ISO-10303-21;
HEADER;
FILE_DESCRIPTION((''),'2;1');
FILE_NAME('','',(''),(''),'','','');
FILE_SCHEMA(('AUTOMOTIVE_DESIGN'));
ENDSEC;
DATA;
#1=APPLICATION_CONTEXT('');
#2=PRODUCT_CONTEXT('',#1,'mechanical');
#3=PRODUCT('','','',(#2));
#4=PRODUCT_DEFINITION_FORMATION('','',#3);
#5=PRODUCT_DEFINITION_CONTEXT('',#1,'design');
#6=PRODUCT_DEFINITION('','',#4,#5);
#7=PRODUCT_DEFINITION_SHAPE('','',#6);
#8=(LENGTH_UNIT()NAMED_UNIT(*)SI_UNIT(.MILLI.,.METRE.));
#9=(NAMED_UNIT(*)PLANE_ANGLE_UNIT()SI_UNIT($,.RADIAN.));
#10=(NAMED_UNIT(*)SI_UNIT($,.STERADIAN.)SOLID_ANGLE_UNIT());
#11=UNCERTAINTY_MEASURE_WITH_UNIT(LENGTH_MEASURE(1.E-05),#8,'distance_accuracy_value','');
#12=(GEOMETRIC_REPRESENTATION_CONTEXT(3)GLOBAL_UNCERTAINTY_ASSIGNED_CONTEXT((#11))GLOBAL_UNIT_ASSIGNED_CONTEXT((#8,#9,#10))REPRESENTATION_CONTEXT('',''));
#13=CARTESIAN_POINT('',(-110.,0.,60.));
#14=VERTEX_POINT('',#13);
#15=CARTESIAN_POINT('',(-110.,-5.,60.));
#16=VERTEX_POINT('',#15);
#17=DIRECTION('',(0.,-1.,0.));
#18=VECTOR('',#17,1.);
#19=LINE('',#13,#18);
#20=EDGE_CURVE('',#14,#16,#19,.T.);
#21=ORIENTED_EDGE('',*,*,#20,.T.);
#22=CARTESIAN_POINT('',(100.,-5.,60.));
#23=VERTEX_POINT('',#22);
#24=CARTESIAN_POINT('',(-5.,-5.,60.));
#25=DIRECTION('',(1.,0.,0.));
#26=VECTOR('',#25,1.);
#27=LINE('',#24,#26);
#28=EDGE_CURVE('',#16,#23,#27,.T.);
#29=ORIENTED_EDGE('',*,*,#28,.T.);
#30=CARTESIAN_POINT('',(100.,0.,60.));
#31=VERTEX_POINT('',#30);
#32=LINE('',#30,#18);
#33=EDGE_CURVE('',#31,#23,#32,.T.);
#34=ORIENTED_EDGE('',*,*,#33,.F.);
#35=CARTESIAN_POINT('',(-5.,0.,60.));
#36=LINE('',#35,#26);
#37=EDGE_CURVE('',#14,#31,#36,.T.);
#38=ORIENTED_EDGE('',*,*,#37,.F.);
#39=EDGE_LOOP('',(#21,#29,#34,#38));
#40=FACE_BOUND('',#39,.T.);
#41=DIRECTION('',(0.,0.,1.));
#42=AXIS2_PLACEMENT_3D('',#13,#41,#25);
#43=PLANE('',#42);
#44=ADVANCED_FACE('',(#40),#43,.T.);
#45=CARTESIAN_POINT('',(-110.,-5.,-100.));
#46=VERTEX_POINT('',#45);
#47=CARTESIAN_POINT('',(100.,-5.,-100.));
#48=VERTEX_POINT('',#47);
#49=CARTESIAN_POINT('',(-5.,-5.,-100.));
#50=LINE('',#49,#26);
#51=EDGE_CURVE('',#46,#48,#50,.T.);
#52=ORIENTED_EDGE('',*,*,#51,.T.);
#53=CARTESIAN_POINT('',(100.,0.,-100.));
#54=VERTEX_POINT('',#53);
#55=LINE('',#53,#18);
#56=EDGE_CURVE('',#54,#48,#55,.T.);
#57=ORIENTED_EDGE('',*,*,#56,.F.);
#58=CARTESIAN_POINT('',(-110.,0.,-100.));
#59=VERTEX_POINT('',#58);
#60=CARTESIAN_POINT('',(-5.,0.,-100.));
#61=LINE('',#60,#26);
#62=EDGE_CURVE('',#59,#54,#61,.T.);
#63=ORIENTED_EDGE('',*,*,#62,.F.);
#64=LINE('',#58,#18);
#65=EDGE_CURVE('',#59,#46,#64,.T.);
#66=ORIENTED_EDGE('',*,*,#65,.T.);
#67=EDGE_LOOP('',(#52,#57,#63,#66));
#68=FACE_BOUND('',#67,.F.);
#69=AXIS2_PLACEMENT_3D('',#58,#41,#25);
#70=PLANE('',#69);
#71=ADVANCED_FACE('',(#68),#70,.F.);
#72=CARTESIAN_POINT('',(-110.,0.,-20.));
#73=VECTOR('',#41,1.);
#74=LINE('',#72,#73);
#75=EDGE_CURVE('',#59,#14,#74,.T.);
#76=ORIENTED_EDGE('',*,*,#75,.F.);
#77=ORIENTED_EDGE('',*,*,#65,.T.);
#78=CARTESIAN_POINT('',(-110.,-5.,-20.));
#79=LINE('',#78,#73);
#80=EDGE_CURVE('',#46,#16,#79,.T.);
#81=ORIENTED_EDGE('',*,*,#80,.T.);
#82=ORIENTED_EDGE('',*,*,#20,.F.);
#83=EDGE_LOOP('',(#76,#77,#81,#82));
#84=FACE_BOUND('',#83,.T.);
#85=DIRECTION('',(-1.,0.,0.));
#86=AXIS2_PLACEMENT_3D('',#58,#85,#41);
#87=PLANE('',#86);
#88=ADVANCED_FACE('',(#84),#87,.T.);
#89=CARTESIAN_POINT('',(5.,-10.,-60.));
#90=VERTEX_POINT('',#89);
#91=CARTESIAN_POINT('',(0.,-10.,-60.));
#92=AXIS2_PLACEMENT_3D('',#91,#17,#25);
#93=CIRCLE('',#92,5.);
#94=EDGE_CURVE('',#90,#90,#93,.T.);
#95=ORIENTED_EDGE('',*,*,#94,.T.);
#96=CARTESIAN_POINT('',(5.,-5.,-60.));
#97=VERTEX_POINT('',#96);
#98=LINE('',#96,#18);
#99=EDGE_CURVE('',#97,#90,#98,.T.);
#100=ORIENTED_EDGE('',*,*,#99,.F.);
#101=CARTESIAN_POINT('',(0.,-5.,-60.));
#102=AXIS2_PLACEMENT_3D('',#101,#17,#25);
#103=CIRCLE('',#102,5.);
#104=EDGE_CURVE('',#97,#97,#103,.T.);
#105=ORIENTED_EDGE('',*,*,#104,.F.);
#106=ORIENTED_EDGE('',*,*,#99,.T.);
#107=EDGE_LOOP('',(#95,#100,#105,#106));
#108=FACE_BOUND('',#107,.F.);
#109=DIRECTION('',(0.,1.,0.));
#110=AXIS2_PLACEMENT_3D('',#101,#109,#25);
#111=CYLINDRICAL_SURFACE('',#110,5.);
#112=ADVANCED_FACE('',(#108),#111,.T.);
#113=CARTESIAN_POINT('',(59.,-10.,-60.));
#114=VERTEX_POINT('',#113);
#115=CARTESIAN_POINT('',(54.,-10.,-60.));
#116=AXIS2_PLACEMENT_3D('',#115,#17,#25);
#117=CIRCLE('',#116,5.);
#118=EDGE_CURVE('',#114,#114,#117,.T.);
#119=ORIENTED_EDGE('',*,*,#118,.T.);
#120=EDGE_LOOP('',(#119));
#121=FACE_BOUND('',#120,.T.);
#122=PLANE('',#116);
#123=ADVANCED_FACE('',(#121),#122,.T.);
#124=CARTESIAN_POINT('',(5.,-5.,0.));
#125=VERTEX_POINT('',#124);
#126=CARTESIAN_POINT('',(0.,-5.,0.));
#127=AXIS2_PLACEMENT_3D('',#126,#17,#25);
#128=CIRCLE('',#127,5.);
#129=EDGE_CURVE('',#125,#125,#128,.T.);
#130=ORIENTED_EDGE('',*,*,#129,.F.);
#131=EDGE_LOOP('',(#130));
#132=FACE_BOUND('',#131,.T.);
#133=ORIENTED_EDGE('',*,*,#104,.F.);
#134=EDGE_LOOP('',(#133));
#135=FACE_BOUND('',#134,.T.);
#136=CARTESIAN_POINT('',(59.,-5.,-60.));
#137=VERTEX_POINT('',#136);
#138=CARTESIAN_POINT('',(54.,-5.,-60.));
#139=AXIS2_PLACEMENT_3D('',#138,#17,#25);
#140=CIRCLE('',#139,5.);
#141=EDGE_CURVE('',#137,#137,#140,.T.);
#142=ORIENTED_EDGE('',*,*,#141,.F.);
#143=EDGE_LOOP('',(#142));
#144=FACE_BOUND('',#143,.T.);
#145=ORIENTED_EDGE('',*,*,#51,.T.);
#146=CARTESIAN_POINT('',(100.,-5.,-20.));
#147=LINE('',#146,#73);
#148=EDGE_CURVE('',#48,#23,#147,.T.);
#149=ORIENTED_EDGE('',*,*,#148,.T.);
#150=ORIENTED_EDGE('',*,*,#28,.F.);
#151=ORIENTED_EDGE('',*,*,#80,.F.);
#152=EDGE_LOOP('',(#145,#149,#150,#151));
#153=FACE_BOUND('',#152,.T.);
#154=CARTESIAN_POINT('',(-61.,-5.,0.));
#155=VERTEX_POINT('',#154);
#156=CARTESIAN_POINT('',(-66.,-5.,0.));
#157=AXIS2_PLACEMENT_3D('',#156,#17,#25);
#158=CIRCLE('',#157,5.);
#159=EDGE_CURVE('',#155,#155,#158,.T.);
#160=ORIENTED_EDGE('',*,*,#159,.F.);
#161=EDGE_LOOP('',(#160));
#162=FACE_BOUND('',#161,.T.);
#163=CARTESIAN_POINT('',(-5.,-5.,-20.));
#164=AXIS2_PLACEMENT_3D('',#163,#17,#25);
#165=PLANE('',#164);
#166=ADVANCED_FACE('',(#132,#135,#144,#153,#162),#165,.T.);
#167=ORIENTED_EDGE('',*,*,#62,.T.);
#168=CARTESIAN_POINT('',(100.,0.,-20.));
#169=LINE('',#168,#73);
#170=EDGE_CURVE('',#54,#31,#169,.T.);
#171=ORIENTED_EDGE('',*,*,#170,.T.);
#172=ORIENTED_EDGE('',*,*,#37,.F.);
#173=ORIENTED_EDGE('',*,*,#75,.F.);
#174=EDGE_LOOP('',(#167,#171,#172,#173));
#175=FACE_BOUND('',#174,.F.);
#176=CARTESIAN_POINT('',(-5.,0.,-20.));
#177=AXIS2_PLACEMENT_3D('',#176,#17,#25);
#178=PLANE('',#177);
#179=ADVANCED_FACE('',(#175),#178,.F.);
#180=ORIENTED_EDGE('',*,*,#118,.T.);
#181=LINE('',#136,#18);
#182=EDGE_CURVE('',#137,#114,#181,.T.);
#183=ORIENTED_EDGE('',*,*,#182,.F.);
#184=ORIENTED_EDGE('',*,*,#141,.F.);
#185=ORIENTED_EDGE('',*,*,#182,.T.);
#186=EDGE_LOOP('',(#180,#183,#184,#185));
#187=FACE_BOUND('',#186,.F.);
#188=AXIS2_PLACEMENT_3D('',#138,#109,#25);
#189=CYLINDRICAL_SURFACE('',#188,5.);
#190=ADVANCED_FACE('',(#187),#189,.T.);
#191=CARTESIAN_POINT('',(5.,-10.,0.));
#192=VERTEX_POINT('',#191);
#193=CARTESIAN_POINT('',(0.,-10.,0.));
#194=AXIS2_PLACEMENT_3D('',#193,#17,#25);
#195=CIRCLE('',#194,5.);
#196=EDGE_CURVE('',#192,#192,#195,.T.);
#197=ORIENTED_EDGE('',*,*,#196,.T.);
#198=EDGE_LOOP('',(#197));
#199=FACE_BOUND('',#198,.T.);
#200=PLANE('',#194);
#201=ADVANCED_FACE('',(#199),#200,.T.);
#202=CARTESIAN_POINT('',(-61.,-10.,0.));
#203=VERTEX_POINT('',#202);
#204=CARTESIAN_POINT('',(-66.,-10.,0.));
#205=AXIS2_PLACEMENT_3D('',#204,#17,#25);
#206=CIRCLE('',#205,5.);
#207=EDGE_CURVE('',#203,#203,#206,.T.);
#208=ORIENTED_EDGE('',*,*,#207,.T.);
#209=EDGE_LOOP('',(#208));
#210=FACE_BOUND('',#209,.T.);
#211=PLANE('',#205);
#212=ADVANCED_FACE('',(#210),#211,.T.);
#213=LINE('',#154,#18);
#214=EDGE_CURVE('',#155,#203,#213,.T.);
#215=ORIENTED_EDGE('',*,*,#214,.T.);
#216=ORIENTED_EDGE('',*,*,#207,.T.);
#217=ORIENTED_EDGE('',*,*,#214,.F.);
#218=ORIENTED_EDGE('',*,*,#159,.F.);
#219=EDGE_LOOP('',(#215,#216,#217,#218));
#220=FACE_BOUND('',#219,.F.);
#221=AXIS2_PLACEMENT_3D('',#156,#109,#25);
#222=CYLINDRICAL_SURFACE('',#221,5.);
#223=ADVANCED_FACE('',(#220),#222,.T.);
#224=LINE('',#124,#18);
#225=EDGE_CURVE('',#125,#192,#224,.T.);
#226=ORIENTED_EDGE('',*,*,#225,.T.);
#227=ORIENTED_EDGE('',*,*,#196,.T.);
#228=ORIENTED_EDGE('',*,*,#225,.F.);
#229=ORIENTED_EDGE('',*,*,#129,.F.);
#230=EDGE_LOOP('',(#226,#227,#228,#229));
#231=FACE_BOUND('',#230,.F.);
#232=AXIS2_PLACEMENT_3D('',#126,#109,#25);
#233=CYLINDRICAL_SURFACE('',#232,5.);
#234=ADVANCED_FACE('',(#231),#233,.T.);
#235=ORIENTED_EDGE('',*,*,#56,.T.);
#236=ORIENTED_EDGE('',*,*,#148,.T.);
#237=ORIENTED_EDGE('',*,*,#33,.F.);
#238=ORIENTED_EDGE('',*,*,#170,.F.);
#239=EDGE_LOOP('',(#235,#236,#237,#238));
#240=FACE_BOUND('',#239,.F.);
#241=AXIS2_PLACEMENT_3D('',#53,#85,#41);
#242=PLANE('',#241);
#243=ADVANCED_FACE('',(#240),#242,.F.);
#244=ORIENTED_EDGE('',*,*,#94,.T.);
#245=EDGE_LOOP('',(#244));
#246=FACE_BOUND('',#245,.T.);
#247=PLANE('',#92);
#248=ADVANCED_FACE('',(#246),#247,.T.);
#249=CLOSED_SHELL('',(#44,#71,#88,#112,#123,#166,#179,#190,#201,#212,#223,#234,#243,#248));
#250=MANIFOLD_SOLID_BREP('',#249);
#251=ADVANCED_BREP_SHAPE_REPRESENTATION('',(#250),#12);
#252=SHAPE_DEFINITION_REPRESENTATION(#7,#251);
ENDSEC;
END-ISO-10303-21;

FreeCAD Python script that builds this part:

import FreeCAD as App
import Part
import Sketcher
from FreeCAD import Vector
Q = App.Units.Quantity


def add_polygon(sketch, points):
    """Adds a closed chain of lines whose ends are joined by coincident constraints."""
    first, n = sketch.GeometryCount, len(points)
    for a, b in zip(points, points[1:] + points[:1]):
        sketch.addGeometry(Part.LineSegment(App.Vector(*a, 0), App.Vector(*b, 0)), False)
    for i in range(n):
        sketch.addConstraint(Sketcher.Constraint("Coincident", first + i, 2, first + (i + 1) % n, 1))

doc = App.newDocument("Part")
body = doc.addObject("PartDesign::Body", "Body")

# Sketch on XZ plane
sketch1 = doc.addObject("Sketcher::SketchObject", "Sketch")
body.addObject(sketch1)
sketch1.AttachmentSupport = (doc.XZ_Plane, [""])
sketch1.MapMode = "FlatFace"
add_polygon(sketch1, [(-110, 60), (-110, -100), (100, -100), (100, 60)])  # lines 0-3
sketch1.addConstraint([
    Sketcher.Constraint("Vertical", 0),
    Sketcher.Constraint("Horizontal", 1),
    Sketcher.Constraint("Vertical", 2),
    Sketcher.Constraint("Horizontal", 3),
    Sketcher.Constraint("DistanceX", 1, 1, 1, 2, Q("210 mm")),
    Sketcher.Constraint("DistanceY", 0, 2, 0, 1, Q("160 mm")),
    Sketcher.Constraint("DistanceX", 0, 2, -1, 1, Q("110 mm")),
    Sketcher.Constraint("DistanceY", 0, 2, -1, 1, Q("100 mm")),
])
pad1 = doc.addObject("PartDesign::Pad", "Pad")
body.addObject(pad1)
pad1.Profile = sketch1
pad1.Length = 5

# Sketch on XZ plane
sketch2 = doc.addObject("Sketcher::SketchObject", "Sketch001")
body.addObject(sketch2)
sketch2.AttachmentSupport = (doc.XZ_Plane, [""])
sketch2.MapMode = "FlatFace"
sketch2.AttachmentOffset = App.Placement(Vector(0, 0, 5), App.Rotation())
sketch2.addGeometry([
    Part.Circle(Vector(0, 0, 0), Vector(0, 0, 1), 5),
    Part.Circle(Vector(0, -60, 0), Vector(0, 0, 1), 5),
    Part.Circle(Vector(54, -60, 0), Vector(0, 0, 1), 5),
    Part.Circle(Vector(-66, 0, 0), Vector(0, 0, 1), 5),
], False)
sketch2.addConstraint([
    Sketcher.Constraint("Coincident", 0, 3, -1, 1),
    Sketcher.Constraint("Equal", 0, 1),
    Sketcher.Constraint("Equal", 1, 2),
    Sketcher.Constraint("Equal", 2, 3),
    Sketcher.Constraint("PointOnObject", 1, 3, -2),
    Sketcher.Constraint("PointOnObject", 3, 3, -1),
    Sketcher.Constraint("Horizontal", 1, 3, 2, 3),
    Sketcher.Constraint("Diameter", 0, Q("10 mm")),
    Sketcher.Constraint("DistanceY", 1, 3, -1, 1, Q("60 mm")),
    Sketcher.Constraint("DistanceX", -1, 1, 2, 3, Q("54 mm")),
    Sketcher.Constraint("DistanceX", 3, 3, -1, 1, Q("66 mm")),
])
pad2 = doc.addObject("PartDesign::Pad", "Pad001")
body.addObject(pad2)
pad2.Profile = sketch2
pad2.Length = 5

doc.recompute()
